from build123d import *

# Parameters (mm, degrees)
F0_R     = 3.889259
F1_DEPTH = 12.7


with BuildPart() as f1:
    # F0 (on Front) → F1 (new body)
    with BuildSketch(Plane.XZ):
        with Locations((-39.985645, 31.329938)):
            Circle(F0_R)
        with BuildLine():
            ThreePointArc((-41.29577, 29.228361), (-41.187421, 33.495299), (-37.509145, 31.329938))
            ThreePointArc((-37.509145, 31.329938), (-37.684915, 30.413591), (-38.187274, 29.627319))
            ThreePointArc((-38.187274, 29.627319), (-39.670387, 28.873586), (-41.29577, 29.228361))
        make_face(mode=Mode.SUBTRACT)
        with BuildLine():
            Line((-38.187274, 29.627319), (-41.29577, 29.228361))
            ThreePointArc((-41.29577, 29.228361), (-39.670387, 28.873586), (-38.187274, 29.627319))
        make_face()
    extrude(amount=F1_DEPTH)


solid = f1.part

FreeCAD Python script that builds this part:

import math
import FreeCAD as App
import Part
import Sketcher

V = App.Vector
Q = App.Units.Quantity

doc = App.newDocument("Part")
body = doc.addObject("PartDesign::Body", "Body")

# Sketch on XZ plane
sketch1 = body.newObject("Sketcher::SketchObject", "Sketch")
sketch1.AttachmentSupport = (doc.getObject("XZ_Plane"), [""])
sketch1.MapMode = "FlatFace"
sketch1.addGeometry(Part.Circle(V(-40, 31.3, 0), V(0, 0, 1), 3.9), False)
sketch1.addGeometry(Part.ArcOfCircle(Part.Circle(V(-40, 31.3, 0), V(0, 0, 1), 2.5), math.radians(-43), math.radians(0)), False)
sketch1.addGeometry(Part.LineSegment(V(-38.2, 29.6, 0), V(-41.3, 29.2, 0)), False)
sketch1.addGeometry(Part.ArcOfCircle(Part.Circle(V(-40, 31.3, 0), V(0, 0, 1), 2.5), math.radians(0), math.radians(238)), False)
sketch1.addConstraint(Sketcher.Constraint("Coincident", 1, 1, 2, 1))
sketch1.addConstraint(Sketcher.Constraint("Coincident", 2, 2, 3, 2))
sketch1.addConstraint(Sketcher.Constraint("Tangent", 3, 1, 1, 2))
sketch1.addConstraint(Sketcher.Constraint("Coincident", 1, 3, 0, 3))
sketch1.addConstraint(Sketcher.Constraint("Equal", 1, 3))
sketch1.addConstraint(Sketcher.Constraint("Horizontal", 1, 3, 3, 1))
sketch1.addConstraint(Sketcher.Constraint("Radius", 1, Q("0.0975001 in")))
sketch1.addConstraint(Sketcher.Constraint("Diameter", 0, Q("7.778518 mm")))
sketch1.addConstraint(Sketcher.Constraint("DistanceY", -1, 1, 1, 3, Q("31.329939 mm")))
sketch1.addConstraint(Sketcher.Constraint("DistanceY", -1, 1, 1, 1, Q("29.627319 mm")))
sketch1.addConstraint(Sketcher.Constraint("DistanceX", 2, 2, -1, 1, Q("41.29577 mm")))
sketch1.addConstraint(Sketcher.Constraint("DistanceY", -1, 1, 2, 2, Q("29.228361 mm")))
pad1 = body.newObject("PartDesign::Pad", "Pad")
pad1.Profile = sketch1
pad1.Length = Q("0.5 in")

doc.recompute()
